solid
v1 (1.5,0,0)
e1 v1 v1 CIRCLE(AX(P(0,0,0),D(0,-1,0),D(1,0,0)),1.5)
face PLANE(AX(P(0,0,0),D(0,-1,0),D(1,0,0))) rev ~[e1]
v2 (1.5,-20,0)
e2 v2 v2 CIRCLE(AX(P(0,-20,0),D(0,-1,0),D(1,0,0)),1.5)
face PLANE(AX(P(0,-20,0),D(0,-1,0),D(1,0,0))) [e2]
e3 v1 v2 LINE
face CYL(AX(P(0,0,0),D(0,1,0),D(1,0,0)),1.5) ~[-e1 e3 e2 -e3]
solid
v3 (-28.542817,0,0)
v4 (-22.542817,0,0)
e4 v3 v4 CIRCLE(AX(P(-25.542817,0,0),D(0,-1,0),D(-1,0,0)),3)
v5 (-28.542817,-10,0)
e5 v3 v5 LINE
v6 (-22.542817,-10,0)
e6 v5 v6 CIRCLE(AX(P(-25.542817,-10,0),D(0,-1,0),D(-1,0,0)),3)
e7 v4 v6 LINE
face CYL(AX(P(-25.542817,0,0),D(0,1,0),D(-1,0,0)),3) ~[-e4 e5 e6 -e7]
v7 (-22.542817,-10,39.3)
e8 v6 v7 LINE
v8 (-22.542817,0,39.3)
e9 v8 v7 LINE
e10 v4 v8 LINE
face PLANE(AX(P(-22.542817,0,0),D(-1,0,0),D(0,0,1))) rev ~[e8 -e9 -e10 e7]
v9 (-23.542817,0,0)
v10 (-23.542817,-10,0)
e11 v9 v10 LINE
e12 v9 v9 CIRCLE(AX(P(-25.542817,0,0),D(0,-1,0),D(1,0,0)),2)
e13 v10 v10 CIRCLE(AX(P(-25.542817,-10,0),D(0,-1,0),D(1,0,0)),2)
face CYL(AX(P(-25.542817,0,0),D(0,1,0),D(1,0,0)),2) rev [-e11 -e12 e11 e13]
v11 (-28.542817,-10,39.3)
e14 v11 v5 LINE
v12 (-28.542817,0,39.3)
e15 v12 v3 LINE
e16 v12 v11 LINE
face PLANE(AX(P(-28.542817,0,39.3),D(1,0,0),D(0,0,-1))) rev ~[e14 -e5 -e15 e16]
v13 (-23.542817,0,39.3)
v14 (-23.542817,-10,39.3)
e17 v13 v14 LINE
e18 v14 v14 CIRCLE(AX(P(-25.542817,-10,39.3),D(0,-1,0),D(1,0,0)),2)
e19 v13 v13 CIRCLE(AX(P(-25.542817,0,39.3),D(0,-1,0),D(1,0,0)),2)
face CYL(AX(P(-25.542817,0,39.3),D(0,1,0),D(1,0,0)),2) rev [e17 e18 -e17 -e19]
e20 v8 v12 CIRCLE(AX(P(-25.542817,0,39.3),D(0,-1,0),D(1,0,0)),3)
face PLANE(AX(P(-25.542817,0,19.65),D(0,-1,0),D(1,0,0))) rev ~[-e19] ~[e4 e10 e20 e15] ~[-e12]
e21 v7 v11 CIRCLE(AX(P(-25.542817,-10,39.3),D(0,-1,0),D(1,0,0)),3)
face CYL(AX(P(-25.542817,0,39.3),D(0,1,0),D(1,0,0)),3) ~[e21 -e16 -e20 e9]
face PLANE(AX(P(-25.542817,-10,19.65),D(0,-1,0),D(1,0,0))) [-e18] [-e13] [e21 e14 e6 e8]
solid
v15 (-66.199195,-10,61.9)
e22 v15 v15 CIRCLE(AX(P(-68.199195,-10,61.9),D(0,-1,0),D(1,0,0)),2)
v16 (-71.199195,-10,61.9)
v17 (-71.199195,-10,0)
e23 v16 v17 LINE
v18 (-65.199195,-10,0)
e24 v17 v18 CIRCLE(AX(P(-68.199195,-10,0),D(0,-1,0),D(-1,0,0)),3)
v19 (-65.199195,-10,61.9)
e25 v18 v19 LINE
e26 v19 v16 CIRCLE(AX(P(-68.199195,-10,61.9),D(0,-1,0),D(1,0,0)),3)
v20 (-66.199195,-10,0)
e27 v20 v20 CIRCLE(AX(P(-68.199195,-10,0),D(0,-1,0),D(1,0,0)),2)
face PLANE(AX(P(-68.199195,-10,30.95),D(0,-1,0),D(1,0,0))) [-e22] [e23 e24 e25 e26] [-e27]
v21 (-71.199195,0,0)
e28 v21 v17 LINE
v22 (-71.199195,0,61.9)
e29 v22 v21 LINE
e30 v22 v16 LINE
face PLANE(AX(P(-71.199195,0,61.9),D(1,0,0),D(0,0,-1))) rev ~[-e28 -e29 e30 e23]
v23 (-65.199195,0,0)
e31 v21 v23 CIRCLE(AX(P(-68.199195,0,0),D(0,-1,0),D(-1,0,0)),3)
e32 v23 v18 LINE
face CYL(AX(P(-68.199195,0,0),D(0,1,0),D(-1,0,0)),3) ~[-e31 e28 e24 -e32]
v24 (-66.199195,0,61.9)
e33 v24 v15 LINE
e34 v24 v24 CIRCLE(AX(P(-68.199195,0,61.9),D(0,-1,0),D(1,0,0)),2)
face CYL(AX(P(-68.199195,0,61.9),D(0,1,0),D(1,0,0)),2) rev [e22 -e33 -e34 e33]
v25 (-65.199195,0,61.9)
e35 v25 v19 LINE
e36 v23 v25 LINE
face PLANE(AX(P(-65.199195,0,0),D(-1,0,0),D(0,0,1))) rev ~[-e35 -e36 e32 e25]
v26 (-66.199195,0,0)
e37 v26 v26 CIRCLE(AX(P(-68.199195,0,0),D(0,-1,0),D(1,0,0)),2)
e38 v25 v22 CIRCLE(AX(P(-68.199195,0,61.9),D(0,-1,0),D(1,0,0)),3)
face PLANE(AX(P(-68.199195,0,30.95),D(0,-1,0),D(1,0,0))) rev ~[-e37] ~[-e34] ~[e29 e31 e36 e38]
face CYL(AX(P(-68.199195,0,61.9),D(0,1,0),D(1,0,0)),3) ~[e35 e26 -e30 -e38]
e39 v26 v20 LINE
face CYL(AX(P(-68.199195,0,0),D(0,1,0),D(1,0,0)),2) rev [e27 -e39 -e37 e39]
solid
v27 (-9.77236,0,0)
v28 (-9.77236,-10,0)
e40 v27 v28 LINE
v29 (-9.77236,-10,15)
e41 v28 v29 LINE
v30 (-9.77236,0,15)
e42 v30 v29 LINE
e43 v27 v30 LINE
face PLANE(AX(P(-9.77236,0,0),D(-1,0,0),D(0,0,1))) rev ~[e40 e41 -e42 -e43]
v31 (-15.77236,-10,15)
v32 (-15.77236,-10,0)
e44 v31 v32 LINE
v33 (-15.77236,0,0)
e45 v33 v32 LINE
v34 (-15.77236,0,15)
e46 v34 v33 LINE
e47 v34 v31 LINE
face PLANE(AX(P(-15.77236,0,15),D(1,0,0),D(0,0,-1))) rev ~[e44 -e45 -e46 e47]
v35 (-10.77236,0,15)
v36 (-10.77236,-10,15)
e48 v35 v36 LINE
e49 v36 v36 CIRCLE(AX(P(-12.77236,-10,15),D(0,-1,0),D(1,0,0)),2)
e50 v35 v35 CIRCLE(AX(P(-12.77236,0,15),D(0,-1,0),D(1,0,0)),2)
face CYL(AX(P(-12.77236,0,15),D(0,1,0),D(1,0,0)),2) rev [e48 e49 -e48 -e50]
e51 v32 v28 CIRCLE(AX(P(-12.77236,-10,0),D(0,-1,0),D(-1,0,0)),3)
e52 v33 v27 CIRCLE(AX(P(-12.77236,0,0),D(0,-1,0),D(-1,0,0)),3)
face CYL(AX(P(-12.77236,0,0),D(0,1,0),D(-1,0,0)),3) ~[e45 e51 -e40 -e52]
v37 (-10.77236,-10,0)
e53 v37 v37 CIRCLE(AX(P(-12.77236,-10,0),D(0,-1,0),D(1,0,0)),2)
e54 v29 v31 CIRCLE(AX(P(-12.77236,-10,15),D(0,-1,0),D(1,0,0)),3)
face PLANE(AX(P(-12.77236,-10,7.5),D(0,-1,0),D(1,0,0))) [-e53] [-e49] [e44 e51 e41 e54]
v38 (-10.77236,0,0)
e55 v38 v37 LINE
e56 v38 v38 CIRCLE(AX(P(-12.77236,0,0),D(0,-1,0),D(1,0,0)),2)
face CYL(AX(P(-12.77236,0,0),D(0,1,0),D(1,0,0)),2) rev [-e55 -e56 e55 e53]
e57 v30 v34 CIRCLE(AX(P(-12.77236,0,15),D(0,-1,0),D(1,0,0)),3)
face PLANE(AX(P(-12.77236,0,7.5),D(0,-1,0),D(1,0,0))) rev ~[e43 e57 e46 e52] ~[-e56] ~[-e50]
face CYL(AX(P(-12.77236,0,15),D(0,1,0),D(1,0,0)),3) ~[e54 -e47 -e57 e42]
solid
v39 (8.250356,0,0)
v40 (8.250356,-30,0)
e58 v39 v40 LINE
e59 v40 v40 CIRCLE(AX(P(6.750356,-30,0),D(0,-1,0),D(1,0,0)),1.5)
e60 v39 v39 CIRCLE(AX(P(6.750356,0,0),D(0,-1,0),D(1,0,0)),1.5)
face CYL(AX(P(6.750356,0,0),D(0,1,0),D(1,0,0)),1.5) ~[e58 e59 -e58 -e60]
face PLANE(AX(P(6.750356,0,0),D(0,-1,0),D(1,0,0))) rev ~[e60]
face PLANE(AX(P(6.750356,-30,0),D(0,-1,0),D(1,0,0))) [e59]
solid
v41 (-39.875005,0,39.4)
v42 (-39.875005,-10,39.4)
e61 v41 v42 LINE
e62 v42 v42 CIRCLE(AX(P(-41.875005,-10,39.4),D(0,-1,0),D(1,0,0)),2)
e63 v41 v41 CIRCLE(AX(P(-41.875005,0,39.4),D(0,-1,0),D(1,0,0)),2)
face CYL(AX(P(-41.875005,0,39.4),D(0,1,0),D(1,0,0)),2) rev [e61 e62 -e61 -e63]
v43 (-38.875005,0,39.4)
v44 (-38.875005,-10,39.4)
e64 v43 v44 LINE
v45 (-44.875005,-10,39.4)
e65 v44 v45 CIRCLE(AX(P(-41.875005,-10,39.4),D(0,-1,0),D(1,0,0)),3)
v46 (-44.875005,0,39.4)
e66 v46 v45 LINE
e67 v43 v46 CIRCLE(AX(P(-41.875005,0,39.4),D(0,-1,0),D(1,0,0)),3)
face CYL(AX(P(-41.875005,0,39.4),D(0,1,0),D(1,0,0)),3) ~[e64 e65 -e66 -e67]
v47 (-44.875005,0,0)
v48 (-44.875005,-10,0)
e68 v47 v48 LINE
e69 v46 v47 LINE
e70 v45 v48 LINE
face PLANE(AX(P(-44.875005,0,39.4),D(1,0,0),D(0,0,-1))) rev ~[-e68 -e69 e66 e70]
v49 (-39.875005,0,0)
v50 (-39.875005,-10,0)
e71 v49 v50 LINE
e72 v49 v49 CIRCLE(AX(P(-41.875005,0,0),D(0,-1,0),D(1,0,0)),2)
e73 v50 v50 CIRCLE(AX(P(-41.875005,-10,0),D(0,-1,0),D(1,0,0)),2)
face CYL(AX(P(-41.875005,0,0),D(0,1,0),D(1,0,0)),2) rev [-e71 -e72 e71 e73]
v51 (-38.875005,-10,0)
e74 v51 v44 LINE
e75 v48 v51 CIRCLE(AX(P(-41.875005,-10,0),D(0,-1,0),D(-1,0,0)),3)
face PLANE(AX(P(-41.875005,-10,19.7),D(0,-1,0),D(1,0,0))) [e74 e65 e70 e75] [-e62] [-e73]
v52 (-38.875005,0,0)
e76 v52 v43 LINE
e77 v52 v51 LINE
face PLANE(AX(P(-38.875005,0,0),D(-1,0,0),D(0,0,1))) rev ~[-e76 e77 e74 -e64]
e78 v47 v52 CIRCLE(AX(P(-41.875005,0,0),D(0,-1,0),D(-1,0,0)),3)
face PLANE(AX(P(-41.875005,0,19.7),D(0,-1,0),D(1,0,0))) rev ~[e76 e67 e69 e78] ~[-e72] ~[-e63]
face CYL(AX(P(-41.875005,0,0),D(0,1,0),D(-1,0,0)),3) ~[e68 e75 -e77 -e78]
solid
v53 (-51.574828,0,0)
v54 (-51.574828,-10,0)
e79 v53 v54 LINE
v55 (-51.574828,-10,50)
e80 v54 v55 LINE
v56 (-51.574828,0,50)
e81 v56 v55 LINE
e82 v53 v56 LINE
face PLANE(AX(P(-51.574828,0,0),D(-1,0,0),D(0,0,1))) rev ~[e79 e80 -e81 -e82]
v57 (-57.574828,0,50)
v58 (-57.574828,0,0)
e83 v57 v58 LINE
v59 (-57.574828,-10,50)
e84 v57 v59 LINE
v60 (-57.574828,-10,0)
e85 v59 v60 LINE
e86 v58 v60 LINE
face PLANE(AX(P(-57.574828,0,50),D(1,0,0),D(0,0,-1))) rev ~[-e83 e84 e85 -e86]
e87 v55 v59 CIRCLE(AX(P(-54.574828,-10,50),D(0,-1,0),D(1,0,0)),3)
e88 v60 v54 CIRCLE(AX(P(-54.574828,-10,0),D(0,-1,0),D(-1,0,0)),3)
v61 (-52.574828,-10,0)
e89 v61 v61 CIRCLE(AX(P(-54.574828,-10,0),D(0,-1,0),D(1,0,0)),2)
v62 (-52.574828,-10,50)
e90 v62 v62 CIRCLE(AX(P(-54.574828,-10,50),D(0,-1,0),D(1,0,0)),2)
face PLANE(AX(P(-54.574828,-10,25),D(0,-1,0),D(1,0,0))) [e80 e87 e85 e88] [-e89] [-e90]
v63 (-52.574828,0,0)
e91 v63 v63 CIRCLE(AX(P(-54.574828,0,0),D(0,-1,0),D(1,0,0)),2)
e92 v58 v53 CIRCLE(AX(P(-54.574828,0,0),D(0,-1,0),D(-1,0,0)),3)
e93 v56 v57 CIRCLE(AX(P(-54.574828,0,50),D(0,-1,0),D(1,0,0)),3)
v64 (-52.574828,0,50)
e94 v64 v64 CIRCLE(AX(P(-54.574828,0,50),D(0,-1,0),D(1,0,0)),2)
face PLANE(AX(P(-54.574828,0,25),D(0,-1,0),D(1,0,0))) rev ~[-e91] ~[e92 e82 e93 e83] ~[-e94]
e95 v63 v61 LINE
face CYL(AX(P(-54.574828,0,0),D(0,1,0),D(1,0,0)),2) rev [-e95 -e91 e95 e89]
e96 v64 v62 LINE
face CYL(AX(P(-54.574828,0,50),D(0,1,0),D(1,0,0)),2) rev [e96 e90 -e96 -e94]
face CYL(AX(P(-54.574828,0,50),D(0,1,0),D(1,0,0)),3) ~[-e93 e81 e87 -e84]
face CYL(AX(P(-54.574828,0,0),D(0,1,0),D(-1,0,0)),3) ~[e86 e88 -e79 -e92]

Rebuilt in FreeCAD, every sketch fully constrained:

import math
import FreeCAD as App
import Part
import Sketcher
Q = App.Units.Quantity

doc = App.newDocument("Part")
params = doc.addObject("Spreadsheet::Sheet", "Params")
for row, (alias, value) in enumerate([
    ("sketch1_diameter", "4 mm"),
    ("sketch1_radius", "3 mm"),
    ("sketch1_height", "15 mm"),
    ("pad1_length", "10 mm"),
    ("sketch2_diameter", "4 mm"),
    ("sketch2_radius", "3 mm"),
    ("sketch2_height", "39.3 mm"),
    ("pad2_length", "10 mm"),
    ("sketch3_diameter", "4 mm"),
    ("sketch3_radius", "3 mm"),
    ("sketch3_height", "39.4 mm"),
    ("pad3_length", "10 mm"),
    ("sketch4_diameter", "4 mm"),
    ("sketch4_radius", "3 mm"),
    ("sketch4_height", "50 mm"),
    ("pad4_length", "10 mm"),
    ("sketch5_diameter", "4 mm"),
    ("sketch5_radius", "3 mm"),
    ("sketch5_height", "61.9 mm"),
    ("pad5_length", "10 mm"),
    ("sketch6_diameter", "3 mm"),
    ("pad6_length", "20 mm"),
    ("sketch7_diameter", "3 mm"),
    ("pad7_length", "30 mm"),
], start=1):
    params.set(f"A{row}", alias)
    params.set(f"B{row}", "=" + value)
    params.setAlias(f"B{row}", alias)

body = doc.addObject("PartDesign::Body", "Body")

sketch1 = body.newObject("Sketcher::SketchObject", "Sketch")
sketch1.AttachmentSupport = (doc.getObject("XZ_Plane"), [""])
sketch1.MapMode = "FlatFace"
sketch1.addGeometry([
    Part.LineSegment(App.Vector(-15.77236, 15, 0), App.Vector(-15.77236, 0, 0)),
    Part.ArcOfCircle(Part.Circle(App.Vector(-12.77236, 0, 0), App.Vector(0, 0, 1), 3), math.radians(180), math.radians(360)),
    Part.LineSegment(App.Vector(-9.77236, 0, 0), App.Vector(-9.77236, 15, 0)),
    Part.ArcOfCircle(Part.Circle(App.Vector(-12.77236, 15, 0), App.Vector(0, 0, 1), 3), math.radians(0), math.radians(180)),
    Part.Circle(App.Vector(-12.77236, 0, 0), App.Vector(0, 0, 1), 2),
    Part.Circle(App.Vector(-12.77236, 15, 0), App.Vector(0, 0, 1), 2),
], False)
sketch1.addConstraint([
    Sketcher.Constraint("Tangent", 0, 2, 1, 1),
    Sketcher.Constraint("Tangent", 1, 2, 2, 1),
    Sketcher.Constraint("Tangent", 2, 2, 3, 1),
    Sketcher.Constraint("Tangent", 3, 2, 0, 1),
    Sketcher.Constraint("Vertical", 0),
    Sketcher.Constraint("Vertical", 2),
    Sketcher.Constraint("Coincident", 4, 3, 1, 3),
    Sketcher.Constraint("Coincident", 5, 3, 3, 3),
    Sketcher.Constraint("Equal", 4, 5),
    Sketcher.Constraint("PointOnObject", 1, 3, -1),
    Sketcher.Constraint("Diameter", 4, Q("4 mm")),
    Sketcher.Constraint("Radius", 1, Q("3 mm")),
    Sketcher.Constraint("DistanceY", 0, 2, 0, 1, Q("15 mm")),
    Sketcher.Constraint("DistanceX", 1, 3, -1, 1, Q("12.77236 mm")),
])
sketch1.setExpression("Constraints[10]", "Params.sketch1_diameter")
sketch1.setExpression("Constraints[11]", "Params.sketch1_radius")
sketch1.setExpression("Constraints[12]", "Params.sketch1_height")
pad1 = body.newObject("PartDesign::Pad", "Pad")
pad1.Profile = sketch1
pad1.setExpression("Length", "Params.pad1_length")
body2 = doc.addObject("PartDesign::Body", "Body001")

sketch2 = body2.newObject("Sketcher::SketchObject", "Sketch001")
sketch2.AttachmentSupport = (doc.getObject("XZ_Plane001"), [""])
sketch2.MapMode = "FlatFace"
sketch2.addGeometry([
    Part.LineSegment(App.Vector(-28.542817, 39.3, 0), App.Vector(-28.542817, 0, 0)),
    Part.ArcOfCircle(Part.Circle(App.Vector(-25.542817, 0, 0), App.Vector(0, 0, 1), 3), math.radians(180), math.radians(360)),
    Part.LineSegment(App.Vector(-22.542817, 0, 0), App.Vector(-22.542817, 39.3, 0)),
    Part.ArcOfCircle(Part.Circle(App.Vector(-25.542817, 39.3, 0), App.Vector(0, 0, 1), 3), math.radians(0), math.radians(180)),
    Part.Circle(App.Vector(-25.542817, 0, 0), App.Vector(0, 0, 1), 2),
    Part.Circle(App.Vector(-25.542817, 39.3, 0), App.Vector(0, 0, 1), 2),
], False)
sketch2.addConstraint([
    Sketcher.Constraint("Tangent", 0, 2, 1, 1),
    Sketcher.Constraint("Tangent", 1, 2, 2, 1),
    Sketcher.Constraint("Tangent", 2, 2, 3, 1),
    Sketcher.Constraint("Tangent", 3, 2, 0, 1),
    Sketcher.Constraint("Vertical", 0),
    Sketcher.Constraint("Vertical", 2),
    Sketcher.Constraint("Coincident", 4, 3, 1, 3),
    Sketcher.Constraint("Coincident", 5, 3, 3, 3),
    Sketcher.Constraint("Equal", 4, 5),
    Sketcher.Constraint("PointOnObject", 1, 3, -1),
    Sketcher.Constraint("Diameter", 4, Q("4 mm")),
    Sketcher.Constraint("Radius", 1, Q("3 mm")),
    Sketcher.Constraint("DistanceY", 0, 2, 0, 1, Q("39.3 mm")),
    Sketcher.Constraint("DistanceX", 1, 3, -1, 1, Q("25.542817 mm")),
])
sketch2.setExpression("Constraints[10]", "Params.sketch2_diameter")
sketch2.setExpression("Constraints[11]", "Params.sketch2_radius")
sketch2.setExpression("Constraints[12]", "Params.sketch2_height")
pad2 = body2.newObject("PartDesign::Pad", "Pad001")
pad2.Profile = sketch2
pad2.setExpression("Length", "Params.pad2_length")
body3 = doc.addObject("PartDesign::Body", "Body002")

sketch3 = body3.newObject("Sketcher::SketchObject", "Sketch002")
sketch3.AttachmentSupport = (doc.getObject("XZ_Plane002"), [""])
sketch3.MapMode = "FlatFace"
sketch3.addGeometry([
    Part.LineSegment(App.Vector(-44.875005, 39.4, 0), App.Vector(-44.875005, 0, 0)),
    Part.ArcOfCircle(Part.Circle(App.Vector(-41.875005, 0, 0), App.Vector(0, 0, 1), 3), math.radians(180), math.radians(360)),
    Part.LineSegment(App.Vector(-38.875005, 0, 0), App.Vector(-38.875005, 39.4, 0)),
    Part.ArcOfCircle(Part.Circle(App.Vector(-41.875005, 39.4, 0), App.Vector(0, 0, 1), 3), math.radians(0), math.radians(180)),
    Part.Circle(App.Vector(-41.875005, 0, 0), App.Vector(0, 0, 1), 2),
    Part.Circle(App.Vector(-41.875005, 39.4, 0), App.Vector(0, 0, 1), 2),
], False)
sketch3.addConstraint([
    Sketcher.Constraint("Tangent", 0, 2, 1, 1),
    Sketcher.Constraint("Tangent", 1, 2, 2, 1),
    Sketcher.Constraint("Tangent", 2, 2, 3, 1),
    Sketcher.Constraint("Tangent", 3, 2, 0, 1),
    Sketcher.Constraint("Vertical", 0),
    Sketcher.Constraint("Vertical", 2),
    Sketcher.Constraint("Coincident", 4, 3, 1, 3),
    Sketcher.Constraint("Coincident", 5, 3, 3, 3),
    Sketcher.Constraint("Equal", 4, 5),
    Sketcher.Constraint("PointOnObject", 1, 3, -1),
    Sketcher.Constraint("Diameter", 4, Q("4 mm")),
    Sketcher.Constraint("Radius", 1, Q("3 mm")),
    Sketcher.Constraint("DistanceY", 0, 2, 0, 1, Q("39.4 mm")),
    Sketcher.Constraint("DistanceX", 1, 3, -1, 1, Q("41.875005 mm")),
])
sketch3.setExpression("Constraints[10]", "Params.sketch3_diameter")
sketch3.setExpression("Constraints[11]", "Params.sketch3_radius")
sketch3.setExpression("Constraints[12]", "Params.sketch3_height")
pad3 = body3.newObject("PartDesign::Pad", "Pad002")
pad3.Profile = sketch3
pad3.setExpression("Length", "Params.pad3_length")
body4 = doc.addObject("PartDesign::Body", "Body003")

sketch4 = body4.newObject("Sketcher::SketchObject", "Sketch003")
sketch4.AttachmentSupport = (doc.getObject("XZ_Plane003"), [""])
sketch4.MapMode = "FlatFace"
sketch4.addGeometry([
    Part.LineSegment(App.Vector(-57.574828, 50, 0), App.Vector(-57.574828, 0, 0)),
    Part.ArcOfCircle(Part.Circle(App.Vector(-54.574828, 0, 0), App.Vector(0, 0, 1), 3), math.radians(180), math.radians(360)),
    Part.LineSegment(App.Vector(-51.574828, 0, 0), App.Vector(-51.574828, 50, 0)),
    Part.ArcOfCircle(Part.Circle(App.Vector(-54.574828, 50, 0), App.Vector(0, 0, 1), 3), math.radians(0), math.radians(180)),
    Part.Circle(App.Vector(-54.574828, 0, 0), App.Vector(0, 0, 1), 2),
    Part.Circle(App.Vector(-54.574828, 50, 0), App.Vector(0, 0, 1), 2),
], False)
sketch4.addConstraint([
    Sketcher.Constraint("Tangent", 0, 2, 1, 1),
    Sketcher.Constraint("Tangent", 1, 2, 2, 1),
    Sketcher.Constraint("Tangent", 2, 2, 3, 1),
    Sketcher.Constraint("Tangent", 3, 2, 0, 1),
    Sketcher.Constraint("Vertical", 0),
    Sketcher.Constraint("Vertical", 2),
    Sketcher.Constraint("Coincident", 4, 3, 1, 3),
    Sketcher.Constraint("Coincident", 5, 3, 3, 3),
    Sketcher.Constraint("Equal", 4, 5),
    Sketcher.Constraint("PointOnObject", 1, 3, -1),
    Sketcher.Constraint("Diameter", 4, Q("4 mm")),
    Sketcher.Constraint("Radius", 1, Q("3 mm")),
    Sketcher.Constraint("DistanceY", 0, 2, 0, 1, Q("50 mm")),
    Sketcher.Constraint("DistanceX", 1, 3, -1, 1, Q("54.574828 mm")),
])
sketch4.setExpression("Constraints[10]", "Params.sketch4_diameter")
sketch4.setExpression("Constraints[11]", "Params.sketch4_radius")
sketch4.setExpression("Constraints[12]", "Params.sketch4_height")
pad4 = body4.newObject("PartDesign::Pad", "Pad003")
pad4.Profile = sketch4
pad4.setExpression("Length", "Params.pad4_length")
body5 = doc.addObject("PartDesign::Body", "Body004")

sketch5 = body5.newObject("Sketcher::SketchObject", "Sketch004")
sketch5.AttachmentSupport = (doc.getObject("XZ_Plane004"), [""])
sketch5.MapMode = "FlatFace"
sketch5.addGeometry([
    Part.LineSegment(App.Vector(-71.199195, 61.9, 0), App.Vector(-71.199195, 0, 0)),
    Part.ArcOfCircle(Part.Circle(App.Vector(-68.199195, 0, 0), App.Vector(0, 0, 1), 3), math.radians(180), math.radians(360)),
    Part.LineSegment(App.Vector(-65.199195, 0, 0), App.Vector(-65.199195, 61.9, 0)),
    Part.ArcOfCircle(Part.Circle(App.Vector(-68.199195, 61.9, 0), App.Vector(0, 0, 1), 3), math.radians(0), math.radians(180)),
    Part.Circle(App.Vector(-68.199195, 0, 0), App.Vector(0, 0, 1), 2),
    Part.Circle(App.Vector(-68.199195, 61.9, 0), App.Vector(0, 0, 1), 2),
], False)
sketch5.addConstraint([
    Sketcher.Constraint("Tangent", 0, 2, 1, 1),
    Sketcher.Constraint("Tangent", 1, 2, 2, 1),
    Sketcher.Constraint("Tangent", 2, 2, 3, 1),
    Sketcher.Constraint("Tangent", 3, 2, 0, 1),
    Sketcher.Constraint("Vertical", 0),
    Sketcher.Constraint("Vertical", 2),
    Sketcher.Constraint("Coincident", 4, 3, 1, 3),
    Sketcher.Constraint("Coincident", 5, 3, 3, 3),
    Sketcher.Constraint("Equal", 4, 5),
    Sketcher.Constraint("PointOnObject", 1, 3, -1),
    Sketcher.Constraint("Diameter", 4, Q("4 mm")),
    Sketcher.Constraint("Radius", 1, Q("3 mm")),
    Sketcher.Constraint("DistanceY", 0, 2, 0, 1, Q("61.9 mm")),
    Sketcher.Constraint("DistanceX", 1, 3, -1, 1, Q("68.199195 mm")),
])
sketch5.setExpression("Constraints[10]", "Params.sketch5_diameter")
sketch5.setExpression("Constraints[11]", "Params.sketch5_radius")
sketch5.setExpression("Constraints[12]", "Params.sketch5_height")
pad5 = body5.newObject("PartDesign::Pad", "Pad004")
pad5.Profile = sketch5
pad5.setExpression("Length", "Params.pad5_length")
body6 = doc.addObject("PartDesign::Body", "Body005")

sketch6 = body6.newObject("Sketcher::SketchObject", "Sketch005")
sketch6.AttachmentSupport = (doc.getObject("XZ_Plane005"), [""])
sketch6.MapMode = "FlatFace"
sketch6.addGeometry(Part.Circle(App.Vector(0, 0, 0), App.Vector(0, 0, 1), 1.5), False)
sketch6.addConstraint([
    Sketcher.Constraint("Coincident", 0, 3, -1, 1),
    Sketcher.Constraint("Diameter", 0, Q("3 mm")),
])
sketch6.setExpression("Constraints[1]", "Params.sketch6_diameter")
pad6 = body6.newObject("PartDesign::Pad", "Pad005")
pad6.Profile = sketch6
pad6.setExpression("Length", "Params.pad6_length")
body7 = doc.addObject("PartDesign::Body", "Body006")

sketch7 = body7.newObject("Sketcher::SketchObject", "Sketch006")
sketch7.AttachmentSupport = (doc.getObject("XZ_Plane006"), [""])
sketch7.MapMode = "FlatFace"
sketch7.addGeometry(Part.Circle(App.Vector(6.750356, 0, 0), App.Vector(0, 0, 1), 1.5), False)
sketch7.addConstraint([
    Sketcher.Constraint("PointOnObject", 0, 3, -1),
    Sketcher.Constraint("Diameter", 0, Q("3 mm")),
    Sketcher.Constraint("DistanceX", -1, 1, 0, 3, Q("6.750356 mm")),
])
sketch7.setExpression("Constraints[1]", "Params.sketch7_diameter")
pad7 = body7.newObject("PartDesign::Pad", "Pad006")
pad7.Profile = sketch7
pad7.setExpression("Length", "Params.pad7_length")

doc.recompute()
